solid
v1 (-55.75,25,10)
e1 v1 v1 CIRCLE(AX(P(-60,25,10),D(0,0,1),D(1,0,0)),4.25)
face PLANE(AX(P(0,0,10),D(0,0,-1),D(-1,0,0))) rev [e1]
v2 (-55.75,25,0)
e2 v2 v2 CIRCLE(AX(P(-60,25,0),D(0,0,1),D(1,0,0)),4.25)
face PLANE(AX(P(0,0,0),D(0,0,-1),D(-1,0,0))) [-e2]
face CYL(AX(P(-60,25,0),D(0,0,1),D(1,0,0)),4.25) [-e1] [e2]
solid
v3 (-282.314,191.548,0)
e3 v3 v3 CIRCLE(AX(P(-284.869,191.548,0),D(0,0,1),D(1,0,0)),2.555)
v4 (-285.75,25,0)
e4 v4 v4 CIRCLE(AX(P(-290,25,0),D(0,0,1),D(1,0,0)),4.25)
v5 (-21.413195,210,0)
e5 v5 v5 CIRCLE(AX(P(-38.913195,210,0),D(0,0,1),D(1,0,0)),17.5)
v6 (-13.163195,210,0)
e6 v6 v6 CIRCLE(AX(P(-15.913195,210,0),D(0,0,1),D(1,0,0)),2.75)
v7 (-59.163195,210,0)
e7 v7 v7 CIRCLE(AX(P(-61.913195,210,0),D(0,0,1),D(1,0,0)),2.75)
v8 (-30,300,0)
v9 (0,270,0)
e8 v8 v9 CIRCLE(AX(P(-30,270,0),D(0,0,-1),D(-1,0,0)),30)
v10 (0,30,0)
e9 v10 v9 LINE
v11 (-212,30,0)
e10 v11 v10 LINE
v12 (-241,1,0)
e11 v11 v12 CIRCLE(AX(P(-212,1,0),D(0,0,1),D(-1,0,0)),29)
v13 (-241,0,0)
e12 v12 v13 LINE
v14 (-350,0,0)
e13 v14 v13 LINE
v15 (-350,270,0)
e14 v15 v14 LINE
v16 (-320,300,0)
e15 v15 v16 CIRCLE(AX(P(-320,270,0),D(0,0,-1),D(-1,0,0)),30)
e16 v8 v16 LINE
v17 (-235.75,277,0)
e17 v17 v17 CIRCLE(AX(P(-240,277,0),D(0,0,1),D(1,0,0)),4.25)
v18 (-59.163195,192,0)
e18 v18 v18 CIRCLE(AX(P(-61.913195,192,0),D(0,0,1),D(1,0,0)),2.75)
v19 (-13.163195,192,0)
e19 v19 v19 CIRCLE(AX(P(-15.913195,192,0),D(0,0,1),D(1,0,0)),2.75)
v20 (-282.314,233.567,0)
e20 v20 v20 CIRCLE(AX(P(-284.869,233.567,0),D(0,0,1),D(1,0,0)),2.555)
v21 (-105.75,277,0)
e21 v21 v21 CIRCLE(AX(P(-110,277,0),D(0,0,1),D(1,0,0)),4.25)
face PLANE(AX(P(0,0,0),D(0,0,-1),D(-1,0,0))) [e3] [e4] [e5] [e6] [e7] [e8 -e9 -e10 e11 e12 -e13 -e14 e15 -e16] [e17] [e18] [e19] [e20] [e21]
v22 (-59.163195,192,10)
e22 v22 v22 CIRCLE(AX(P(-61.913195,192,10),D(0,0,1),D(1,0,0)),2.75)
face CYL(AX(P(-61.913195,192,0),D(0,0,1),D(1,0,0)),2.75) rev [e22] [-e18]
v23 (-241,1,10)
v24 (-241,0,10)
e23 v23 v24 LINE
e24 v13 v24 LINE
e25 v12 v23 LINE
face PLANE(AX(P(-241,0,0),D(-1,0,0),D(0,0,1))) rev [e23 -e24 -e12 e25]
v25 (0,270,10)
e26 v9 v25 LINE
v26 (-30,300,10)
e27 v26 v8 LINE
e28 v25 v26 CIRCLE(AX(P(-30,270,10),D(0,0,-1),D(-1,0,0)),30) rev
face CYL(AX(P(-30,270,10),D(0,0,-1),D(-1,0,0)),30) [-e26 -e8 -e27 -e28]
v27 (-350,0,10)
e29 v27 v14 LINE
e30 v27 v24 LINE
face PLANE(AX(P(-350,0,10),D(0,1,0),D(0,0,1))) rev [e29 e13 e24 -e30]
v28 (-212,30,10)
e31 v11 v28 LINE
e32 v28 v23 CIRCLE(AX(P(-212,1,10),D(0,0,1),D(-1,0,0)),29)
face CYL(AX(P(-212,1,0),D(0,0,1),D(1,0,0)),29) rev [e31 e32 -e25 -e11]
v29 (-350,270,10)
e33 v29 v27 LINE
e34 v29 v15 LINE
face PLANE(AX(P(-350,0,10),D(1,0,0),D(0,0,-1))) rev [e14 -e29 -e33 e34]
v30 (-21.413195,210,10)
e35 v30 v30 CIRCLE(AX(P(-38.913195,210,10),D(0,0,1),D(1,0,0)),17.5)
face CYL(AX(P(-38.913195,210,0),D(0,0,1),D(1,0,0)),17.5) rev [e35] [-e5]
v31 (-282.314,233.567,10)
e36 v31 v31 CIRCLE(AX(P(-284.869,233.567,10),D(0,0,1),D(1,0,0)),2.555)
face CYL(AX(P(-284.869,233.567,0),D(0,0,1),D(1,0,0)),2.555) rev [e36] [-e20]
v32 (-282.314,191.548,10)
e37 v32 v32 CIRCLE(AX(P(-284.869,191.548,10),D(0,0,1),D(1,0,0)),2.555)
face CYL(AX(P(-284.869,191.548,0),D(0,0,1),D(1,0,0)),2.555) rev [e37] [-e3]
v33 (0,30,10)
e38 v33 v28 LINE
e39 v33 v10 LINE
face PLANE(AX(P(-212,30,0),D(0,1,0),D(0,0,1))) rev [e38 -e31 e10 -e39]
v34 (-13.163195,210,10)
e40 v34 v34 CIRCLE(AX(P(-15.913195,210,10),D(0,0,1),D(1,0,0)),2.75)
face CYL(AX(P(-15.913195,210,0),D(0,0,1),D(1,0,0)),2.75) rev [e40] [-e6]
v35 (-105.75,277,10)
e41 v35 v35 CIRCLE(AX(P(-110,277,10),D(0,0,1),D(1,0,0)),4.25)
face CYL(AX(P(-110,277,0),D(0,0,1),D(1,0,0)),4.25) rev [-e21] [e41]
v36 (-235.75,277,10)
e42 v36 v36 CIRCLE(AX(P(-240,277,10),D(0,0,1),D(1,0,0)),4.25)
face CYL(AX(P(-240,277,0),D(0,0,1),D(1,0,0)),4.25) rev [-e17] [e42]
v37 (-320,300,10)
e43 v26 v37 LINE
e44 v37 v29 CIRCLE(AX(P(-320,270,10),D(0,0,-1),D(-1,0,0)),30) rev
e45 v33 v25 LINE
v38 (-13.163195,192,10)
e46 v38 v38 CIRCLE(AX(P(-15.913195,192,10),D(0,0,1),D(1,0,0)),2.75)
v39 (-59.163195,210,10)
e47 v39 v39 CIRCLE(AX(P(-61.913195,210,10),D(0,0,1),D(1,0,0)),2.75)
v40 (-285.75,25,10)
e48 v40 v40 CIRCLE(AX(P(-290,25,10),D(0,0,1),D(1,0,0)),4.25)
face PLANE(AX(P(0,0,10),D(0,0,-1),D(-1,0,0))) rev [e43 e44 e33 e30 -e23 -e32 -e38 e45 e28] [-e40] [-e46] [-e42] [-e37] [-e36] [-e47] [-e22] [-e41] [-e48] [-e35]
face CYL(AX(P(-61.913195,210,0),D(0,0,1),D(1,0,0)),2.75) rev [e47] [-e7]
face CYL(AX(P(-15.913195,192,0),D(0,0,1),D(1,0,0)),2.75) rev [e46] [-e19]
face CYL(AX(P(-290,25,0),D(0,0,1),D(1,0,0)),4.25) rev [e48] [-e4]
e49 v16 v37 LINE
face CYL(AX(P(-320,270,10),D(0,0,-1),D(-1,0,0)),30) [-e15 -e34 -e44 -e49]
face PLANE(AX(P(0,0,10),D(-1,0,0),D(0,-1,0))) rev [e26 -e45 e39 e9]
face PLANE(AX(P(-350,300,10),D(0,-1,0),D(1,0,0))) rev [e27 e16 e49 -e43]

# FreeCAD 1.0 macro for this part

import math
import FreeCAD as App
import Part
import Sketcher
from FreeCAD import Vector


def edges_at(feature, points):
    """Names of the edges that pass closest to the given points."""
    edges = feature.Shape.Edges
    near = lambda p: min(range(len(edges)), key=lambda i: edges[i].distToShape(Part.Vertex(*p))[0])
    return sorted({f"Edge{near(p) + 1}" for p in points})


def add_polygon(sketch, points):
    """Adds a closed chain of lines whose ends are joined by coincident constraints."""
    first, n = sketch.GeometryCount, len(points)
    for a, b in zip(points, points[1:] + points[:1]):
        sketch.addGeometry(Part.LineSegment(App.Vector(*a, 0), App.Vector(*b, 0)), False)
    for i in range(n):
        sketch.addConstraint(Sketcher.Constraint("Coincident", first + i, 2, first + (i + 1) % n, 1))

doc = App.newDocument("Part")
body = doc.addObject("PartDesign::Body", "Body")
body.AllowCompound = True

# Sketch on XY plane
sketch1 = body.newObject("Sketcher::SketchObject", "Sketch")
sketch1.AttachmentSupport = (doc.getObject("XY_Plane"), [""])
sketch1.MapMode = "FlatFace"
add_polygon(sketch1, [(-350, 300), (-350, 0), (0, 0), (0, 300)])  # lines 0-3
sketch1.addConstraint(Sketcher.Constraint("Vertical", 0))
sketch1.addConstraint(Sketcher.Constraint("Horizontal", 1))
sketch1.addConstraint(Sketcher.Constraint("Vertical", 2))
sketch1.addConstraint(Sketcher.Constraint("Horizontal", 3))
sketch1.addConstraint(Sketcher.Constraint("Coincident", 1, 2, -1, 1))
sketch1.addConstraint(Sketcher.Constraint("DistanceX", 1, 1, 1, 2, 350.0))
sketch1.addConstraint(Sketcher.Constraint("DistanceY", 0, 2, 0, 1, 300.0))
pad1 = body.newObject("PartDesign::Pad", "Pad")
pad1.Profile = sketch1
pad1.Length = 10
doc.recompute()

fillet = body.newObject("PartDesign::Fillet", "Fillet")
fillet.Base = (pad1, edges_at(pad1, [(-350, 300, 5), (0, 300, 5)]))
fillet.Radius = 30

# Sketch on XY plane
sketch2 = body.newObject("Sketcher::SketchObject", "Sketch001")
sketch2.AttachmentSupport = (doc.getObject("XY_Plane"), [""])
sketch2.MapMode = "FlatFace"
sketch2.AttachmentOffset = App.Placement(Vector(0, 0, 10), App.Rotation())
sketch2.addGeometry(Part.Circle(Vector(-38.9, 210, 0), Vector(0, 0, 1), 17.5), False)
sketch2.addGeometry(Part.Circle(Vector(-290, 25, 0), Vector(0, 0, 1), 4.2), False)
sketch2.addGeometry(Part.Circle(Vector(-240, 277, 0), Vector(0, 0, 1), 4.2), False)
sketch2.addGeometry(Part.Circle(Vector(-110, 277, 0), Vector(0, 0, 1), 4.2), False)
sketch2.addGeometry(Part.Circle(Vector(-355.1, 233.6, 0), Vector(0, 0, 1), 2.6), False)
sketch2.addGeometry(Part.Circle(Vector(-284.9, 233.6, 0), Vector(0, 0, 1), 2.6), False)
sketch2.addGeometry(Part.Circle(Vector(-284.9, 191.5, 0), Vector(0, 0, 1), 2.6), False)
sketch2.addGeometry(Part.Circle(Vector(-355.1, 191.5, 0), Vector(0, 0, 1), 2.6), False)
sketch2.addGeometry(Part.Circle(Vector(-15.9, 210, 0), Vector(0, 0, 1), 2.8), False)
sketch2.addGeometry(Part.Circle(Vector(-15.9, 192, 0), Vector(0, 0, 1), 2.8), False)
sketch2.addGeometry(Part.Circle(Vector(-61.9, 210, 0), Vector(0, 0, 1), 2.8), False)
sketch2.addGeometry(Part.Circle(Vector(-61.9, 192, 0), Vector(0, 0, 1), 2.8), False)
sketch2.addGeometry(Part.LineSegment(Vector(-241, 0, 0), Vector(181, 0, 0)), False)
sketch2.addGeometry(Part.LineSegment(Vector(181, 0, 0), Vector(181, 1, 0)), False)
sketch2.addGeometry(Part.ArcOfCircle(Part.Circle(Vector(152, 1, 0), Vector(0, 0, 1), 29), math.radians(0), math.radians(90)), False)
sketch2.addGeometry(Part.LineSegment(Vector(152, 30, 0), Vector(-212, 30, 0)), False)
sketch2.addGeometry(Part.ArcOfCircle(Part.Circle(Vector(-212, 1, 0), Vector(0, 0, 1), 29), math.radians(90), math.radians(180)), False)
sketch2.addGeometry(Part.LineSegment(Vector(-241, 1, 0), Vector(-241, 0, 0)), False)
sketch2.addGeometry(Part.Circle(Vector(-60, 25, 0), Vector(0, 0, 1), 4.2), False)
sketch2.addConstraint(Sketcher.Constraint("Coincident", 12, 2, 13, 1))
sketch2.addConstraint(Sketcher.Constraint("Tangent", 13, 2, 14, 1))
sketch2.addConstraint(Sketcher.Constraint("Tangent", 14, 2, 15, 1))
sketch2.addConstraint(Sketcher.Constraint("Tangent", 15, 2, 16, 1))
sketch2.addConstraint(Sketcher.Constraint("Tangent", 16, 2, 17, 1))
sketch2.addConstraint(Sketcher.Constraint("Coincident", 17, 2, 12, 1))
sketch2.addConstraint(Sketcher.Constraint("Horizontal", 12))
sketch2.addConstraint(Sketcher.Constraint("Vertical", 13))
sketch2.addConstraint(Sketcher.Constraint("Horizontal", 15))
sketch2.addConstraint(Sketcher.Constraint("Vertical", 17))
sketch2.addConstraint(Sketcher.Constraint("Equal", 1, 2))
sketch2.addConstraint(Sketcher.Constraint("Equal", 2, 3))
sketch2.addConstraint(Sketcher.Constraint("Equal", 4, 5))
sketch2.addConstraint(Sketcher.Constraint("Equal", 5, 6))
sketch2.addConstraint(Sketcher.Constraint("Equal", 6, 7))
sketch2.addConstraint(Sketcher.Constraint("Equal", 8, 9))
sketch2.addConstraint(Sketcher.Constraint("Equal", 9, 10))
sketch2.addConstraint(Sketcher.Constraint("Equal", 10, 11))
sketch2.addConstraint(Sketcher.Constraint("Equal", 14, 16))
sketch2.addConstraint(Sketcher.Constraint("Equal", 3, 18))
sketch2.addConstraint(Sketcher.Constraint("PointOnObject", 12, 2, -1))
sketch2.addConstraint(Sketcher.Constraint("Horizontal", 2, 3, 3, 3))
sketch2.addConstraint(Sketcher.Constraint("Horizontal", 4, 3, 5, 3))
sketch2.addConstraint(Sketcher.Constraint("Horizontal", 6, 3, 7, 3))
sketch2.addConstraint(Sketcher.Constraint("Horizontal", 0, 3, 8, 3))
sketch2.addConstraint(Sketcher.Constraint("Horizontal", 8, 3, 10, 3))
sketch2.addConstraint(Sketcher.Constraint("Horizontal", 9, 3, 11, 3))
sketch2.addConstraint(Sketcher.Constraint("Horizontal", 1, 3, 18, 3))
sketch2.addConstraint(Sketcher.Constraint("Vertical", 5, 3, 6, 3))
sketch2.addConstraint(Sketcher.Constraint("Vertical", 4, 3, 7, 3))
sketch2.addConstraint(Sketcher.Constraint("Vertical", 8, 3, 9, 3))
sketch2.addConstraint(Sketcher.Constraint("Vertical", 10, 3, 11, 3))
sketch2.addConstraint(Sketcher.Constraint("Diameter", 0, 35.0))
sketch2.addConstraint(Sketcher.Constraint("Radius", 14, 29.0))
sketch2.addConstraint(Sketcher.Constraint("Diameter", 1, 8.5))
sketch2.addConstraint(Sketcher.Constraint("Diameter", 8, 5.5))
sketch2.addConstraint(Sketcher.Constraint("Diameter", 4, 5.11))
sketch2.addConstraint(Sketcher.Constraint("DistanceY", 13, 1, 13, 2, 1.0))
sketch2.addConstraint(Sketcher.Constraint("DistanceY", -1, 1, 0, 3, 210.0))
sketch2.addConstraint(Sketcher.Constraint("DistanceX", 1, 3, -1, 1, 290.0))
sketch2.addConstraint(Sketcher.Constraint("DistanceY", -1, 1, 1, 3, 25.0))
sketch2.addConstraint(Sketcher.Constraint("DistanceX", 2, 3, -1, 1, 240.0))
sketch2.addConstraint(Sketcher.Constraint("DistanceY", -1, 1, 2, 3, 277.0))
sketch2.addConstraint(Sketcher.Constraint("DistanceX", 3, 3, -1, 1, 110.0))
sketch2.addConstraint(Sketcher.Constraint("DistanceY", -1, 1, 9, 3, 192.0))
sketch2.addConstraint(Sketcher.Constraint("DistanceX", 16, 3, -1, 1, 212.0))
sketch2.addConstraint(Sketcher.Constraint("DistanceX", 18, 3, -1, 1, 60.0))
sketch2.addConstraint(Sketcher.Constraint("DistanceX", 0, 3, 8, 3, 23.0))
sketch2.addConstraint(Sketcher.Constraint("DistanceX", 10, 3, 0, 3, 23.0))
sketch2.addConstraint(Sketcher.Constraint("DistanceX", 12, 1, 12, 2, 421.991))
sketch2.addConstraint(Sketcher.Constraint("DistanceX", 4, 3, -1, 1, 355.107))
sketch2.addConstraint(Sketcher.Constraint("DistanceY", -1, 1, 4, 3, 233.567))
sketch2.addConstraint(Sketcher.Constraint("DistanceX", 5, 3, -1, 1, 284.869))
sketch2.addConstraint(Sketcher.Constraint("DistanceY", -1, 1, 6, 3, 191.548))
sketch2.addConstraint(Sketcher.Constraint("DistanceX", 0, 3, -1, 1, 38.913195))
pocket1 = body.newObject("PartDesign::Pocket", "Pocket")
pocket1.Profile = sketch2
pocket1.Type = "ThroughAll"

doc.recompute()
